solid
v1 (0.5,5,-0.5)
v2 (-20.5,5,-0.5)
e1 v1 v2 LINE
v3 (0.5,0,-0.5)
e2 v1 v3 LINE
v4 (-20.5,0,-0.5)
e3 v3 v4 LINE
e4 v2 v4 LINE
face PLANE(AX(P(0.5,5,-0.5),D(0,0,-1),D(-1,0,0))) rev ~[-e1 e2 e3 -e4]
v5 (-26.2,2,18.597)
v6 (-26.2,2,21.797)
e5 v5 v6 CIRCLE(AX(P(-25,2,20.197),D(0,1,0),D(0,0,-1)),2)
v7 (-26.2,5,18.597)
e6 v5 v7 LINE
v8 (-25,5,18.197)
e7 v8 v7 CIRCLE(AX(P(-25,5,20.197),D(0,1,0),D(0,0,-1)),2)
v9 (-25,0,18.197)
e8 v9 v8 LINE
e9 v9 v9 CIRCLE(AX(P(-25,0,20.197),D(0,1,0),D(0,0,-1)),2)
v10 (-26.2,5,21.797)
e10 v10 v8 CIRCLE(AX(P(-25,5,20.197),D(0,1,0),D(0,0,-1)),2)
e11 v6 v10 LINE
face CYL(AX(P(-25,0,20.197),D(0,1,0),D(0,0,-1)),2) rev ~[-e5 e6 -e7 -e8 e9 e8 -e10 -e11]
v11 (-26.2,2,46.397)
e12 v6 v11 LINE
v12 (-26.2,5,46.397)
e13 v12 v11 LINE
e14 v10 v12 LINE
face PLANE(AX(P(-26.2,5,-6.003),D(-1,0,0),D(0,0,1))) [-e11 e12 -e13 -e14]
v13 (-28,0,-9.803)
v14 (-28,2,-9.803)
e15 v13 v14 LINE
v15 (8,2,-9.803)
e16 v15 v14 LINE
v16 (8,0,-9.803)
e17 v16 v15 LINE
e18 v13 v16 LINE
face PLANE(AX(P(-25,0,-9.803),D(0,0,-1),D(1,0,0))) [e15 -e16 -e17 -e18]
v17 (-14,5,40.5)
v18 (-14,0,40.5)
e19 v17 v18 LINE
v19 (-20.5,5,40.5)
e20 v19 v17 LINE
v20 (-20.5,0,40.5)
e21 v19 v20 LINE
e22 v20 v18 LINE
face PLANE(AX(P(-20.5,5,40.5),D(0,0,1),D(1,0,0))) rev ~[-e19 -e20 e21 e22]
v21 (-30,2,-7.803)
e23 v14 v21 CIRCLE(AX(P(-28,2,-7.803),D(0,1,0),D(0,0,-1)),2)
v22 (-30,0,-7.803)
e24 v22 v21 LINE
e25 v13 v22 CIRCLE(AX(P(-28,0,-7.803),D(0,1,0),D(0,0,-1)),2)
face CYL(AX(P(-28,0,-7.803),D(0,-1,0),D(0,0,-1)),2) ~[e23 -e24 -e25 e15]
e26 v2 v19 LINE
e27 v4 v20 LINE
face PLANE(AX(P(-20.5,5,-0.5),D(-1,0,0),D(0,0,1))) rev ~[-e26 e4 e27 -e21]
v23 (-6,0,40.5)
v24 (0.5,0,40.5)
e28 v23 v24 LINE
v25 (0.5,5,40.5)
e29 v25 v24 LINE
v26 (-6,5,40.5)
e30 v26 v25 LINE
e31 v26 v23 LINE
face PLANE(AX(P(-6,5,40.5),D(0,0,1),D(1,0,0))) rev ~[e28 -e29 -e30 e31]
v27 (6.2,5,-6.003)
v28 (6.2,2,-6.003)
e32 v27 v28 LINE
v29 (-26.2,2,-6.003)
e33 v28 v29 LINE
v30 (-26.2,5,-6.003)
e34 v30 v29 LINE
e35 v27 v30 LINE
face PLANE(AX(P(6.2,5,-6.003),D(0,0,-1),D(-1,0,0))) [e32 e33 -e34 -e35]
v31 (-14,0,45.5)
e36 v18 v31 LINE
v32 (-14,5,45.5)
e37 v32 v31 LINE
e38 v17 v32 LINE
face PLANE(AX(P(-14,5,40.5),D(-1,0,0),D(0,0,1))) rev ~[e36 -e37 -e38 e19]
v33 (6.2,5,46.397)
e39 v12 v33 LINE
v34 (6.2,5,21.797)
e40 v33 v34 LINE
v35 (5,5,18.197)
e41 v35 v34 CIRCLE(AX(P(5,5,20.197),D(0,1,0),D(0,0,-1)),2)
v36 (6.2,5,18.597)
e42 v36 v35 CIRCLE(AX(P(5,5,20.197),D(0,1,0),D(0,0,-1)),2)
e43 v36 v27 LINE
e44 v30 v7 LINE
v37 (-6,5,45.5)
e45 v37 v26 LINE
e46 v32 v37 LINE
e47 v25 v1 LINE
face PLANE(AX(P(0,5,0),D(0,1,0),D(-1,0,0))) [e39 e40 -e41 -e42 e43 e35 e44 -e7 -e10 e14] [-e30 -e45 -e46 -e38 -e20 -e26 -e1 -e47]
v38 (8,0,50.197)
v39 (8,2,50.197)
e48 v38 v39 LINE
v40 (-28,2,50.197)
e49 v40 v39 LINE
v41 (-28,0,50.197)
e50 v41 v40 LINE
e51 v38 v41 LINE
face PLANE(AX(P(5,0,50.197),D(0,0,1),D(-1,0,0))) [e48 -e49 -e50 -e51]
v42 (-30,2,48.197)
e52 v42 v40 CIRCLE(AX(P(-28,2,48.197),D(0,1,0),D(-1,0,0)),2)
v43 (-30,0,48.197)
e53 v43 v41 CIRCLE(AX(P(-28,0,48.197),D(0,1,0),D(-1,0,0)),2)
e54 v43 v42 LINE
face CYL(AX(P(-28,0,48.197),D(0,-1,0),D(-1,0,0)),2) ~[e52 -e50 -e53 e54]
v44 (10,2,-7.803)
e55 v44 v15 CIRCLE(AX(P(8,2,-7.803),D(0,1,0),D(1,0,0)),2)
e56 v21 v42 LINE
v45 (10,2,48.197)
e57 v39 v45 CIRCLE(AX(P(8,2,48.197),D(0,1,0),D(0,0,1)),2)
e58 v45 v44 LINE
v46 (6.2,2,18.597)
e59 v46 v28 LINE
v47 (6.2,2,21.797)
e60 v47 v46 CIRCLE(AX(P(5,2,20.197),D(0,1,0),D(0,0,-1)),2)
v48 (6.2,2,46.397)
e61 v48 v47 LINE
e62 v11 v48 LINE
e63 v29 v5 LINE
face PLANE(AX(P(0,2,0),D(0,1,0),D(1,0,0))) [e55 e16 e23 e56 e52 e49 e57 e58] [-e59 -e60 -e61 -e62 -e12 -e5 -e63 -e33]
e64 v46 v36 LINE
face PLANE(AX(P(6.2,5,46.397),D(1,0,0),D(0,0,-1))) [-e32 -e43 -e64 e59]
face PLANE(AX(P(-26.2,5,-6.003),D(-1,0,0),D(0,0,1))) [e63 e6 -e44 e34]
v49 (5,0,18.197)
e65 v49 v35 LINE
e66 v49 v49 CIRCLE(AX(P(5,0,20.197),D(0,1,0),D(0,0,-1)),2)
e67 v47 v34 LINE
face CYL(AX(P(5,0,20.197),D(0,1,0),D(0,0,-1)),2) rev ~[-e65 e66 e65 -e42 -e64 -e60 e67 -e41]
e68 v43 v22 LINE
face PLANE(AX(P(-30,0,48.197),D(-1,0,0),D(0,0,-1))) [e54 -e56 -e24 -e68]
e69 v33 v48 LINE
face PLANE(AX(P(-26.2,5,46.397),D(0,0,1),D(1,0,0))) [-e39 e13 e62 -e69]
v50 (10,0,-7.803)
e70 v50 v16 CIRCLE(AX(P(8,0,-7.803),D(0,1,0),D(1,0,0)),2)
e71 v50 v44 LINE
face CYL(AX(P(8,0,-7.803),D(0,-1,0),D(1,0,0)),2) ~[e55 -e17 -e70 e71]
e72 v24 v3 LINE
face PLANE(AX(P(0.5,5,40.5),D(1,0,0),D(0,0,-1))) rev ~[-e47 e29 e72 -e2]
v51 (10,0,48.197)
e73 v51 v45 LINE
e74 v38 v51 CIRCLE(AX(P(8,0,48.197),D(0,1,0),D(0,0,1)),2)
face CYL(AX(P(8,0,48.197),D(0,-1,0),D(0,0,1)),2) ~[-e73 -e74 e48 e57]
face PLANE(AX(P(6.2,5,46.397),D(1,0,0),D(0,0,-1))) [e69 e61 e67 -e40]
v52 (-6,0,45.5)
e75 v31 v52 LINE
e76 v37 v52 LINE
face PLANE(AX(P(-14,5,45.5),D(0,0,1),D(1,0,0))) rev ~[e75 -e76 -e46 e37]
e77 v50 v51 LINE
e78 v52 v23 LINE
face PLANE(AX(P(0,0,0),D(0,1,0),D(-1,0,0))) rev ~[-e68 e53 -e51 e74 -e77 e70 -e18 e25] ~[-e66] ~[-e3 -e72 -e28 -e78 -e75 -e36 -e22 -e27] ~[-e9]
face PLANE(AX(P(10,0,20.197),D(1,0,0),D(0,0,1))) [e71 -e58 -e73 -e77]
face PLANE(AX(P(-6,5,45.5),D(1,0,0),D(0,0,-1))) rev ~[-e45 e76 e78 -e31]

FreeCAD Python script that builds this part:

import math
import FreeCAD as App
import Part
import Sketcher

V = App.Vector
Q = App.Units.Quantity


def add_polygon(sketch, points):
    """Adds a closed chain of lines whose ends are joined by coincident constraints."""
    first, n = sketch.GeometryCount, len(points)
    for a, b in zip(points, points[1:] + points[:1]):
        sketch.addGeometry(Part.LineSegment(App.Vector(*a, 0), App.Vector(*b, 0)), False)
    for i in range(n):
        sketch.addConstraint(Sketcher.Constraint("Coincident", first + i, 2, first + (i + 1) % n, 1))

doc = App.newDocument("Part")
body = doc.addObject("PartDesign::Body", "Body")

sketch1 = body.newObject("Sketcher::SketchObject", "Sketch")
sketch1.AttachmentSupport = (doc.getObject("XZ_Plane"), [""])
sketch1.MapMode = "FlatFace"
sketch1.addGeometry(Part.ArcOfCircle(Part.Circle(V(8, 48.2, 0), V(0, 0, 1), 2), math.radians(0), math.radians(90)), False)
sketch1.addGeometry(Part.LineSegment(V(10, 48.2, 0), V(10, -7.8, 0)), False)
sketch1.addGeometry(Part.ArcOfCircle(Part.Circle(V(8, -7.8, 0), V(0, 0, 1), 2), math.radians(-90), math.radians(0)), False)
sketch1.addGeometry(Part.LineSegment(V(8, -9.8, 0), V(-28, -9.8, 0)), False)
sketch1.addGeometry(Part.ArcOfCircle(Part.Circle(V(-28, -7.8, 0), V(0, 0, 1), 2), math.radians(180), math.radians(270)), False)
sketch1.addGeometry(Part.LineSegment(V(-30, -7.8, 0), V(-30, 48.2, 0)), False)
sketch1.addGeometry(Part.ArcOfCircle(Part.Circle(V(-28, 48.2, 0), V(0, 0, 1), 2), math.radians(90), math.radians(180)), False)
sketch1.addGeometry(Part.LineSegment(V(-28, 50.2, 0), V(8, 50.2, 0)), False)
add_polygon(sketch1, [(-13.5, 45), (-13.5, 40), (-20, 40), (-20, 0), (0, 0), (0, 40), (-6.5, 40), (-6.5, 45)])
sketch1.addConstraint(Sketcher.Constraint("Tangent", 0, 1, 1, 1))
sketch1.addConstraint(Sketcher.Constraint("Tangent", 1, 2, 2, 2))
sketch1.addConstraint(Sketcher.Constraint("Tangent", 2, 1, 3, 1))
sketch1.addConstraint(Sketcher.Constraint("Tangent", 3, 2, 4, 2))
sketch1.addConstraint(Sketcher.Constraint("Tangent", 4, 1, 5, 1))
sketch1.addConstraint(Sketcher.Constraint("Tangent", 5, 2, 6, 2))
sketch1.addConstraint(Sketcher.Constraint("Tangent", 6, 1, 7, 1))
sketch1.addConstraint(Sketcher.Constraint("Tangent", 7, 2, 0, 2))
sketch1.addConstraint(Sketcher.Constraint("Vertical", 1))
sketch1.addConstraint(Sketcher.Constraint("Horizontal", 3))
sketch1.addConstraint(Sketcher.Constraint("Vertical", 5))
sketch1.addConstraint(Sketcher.Constraint("Horizontal", 7))
sketch1.addConstraint(Sketcher.Constraint("Vertical", 8))
sketch1.addConstraint(Sketcher.Constraint("Horizontal", 9))
sketch1.addConstraint(Sketcher.Constraint("Vertical", 10))
sketch1.addConstraint(Sketcher.Constraint("Horizontal", 11))
sketch1.addConstraint(Sketcher.Constraint("Vertical", 12))
sketch1.addConstraint(Sketcher.Constraint("Horizontal", 13))
sketch1.addConstraint(Sketcher.Constraint("Vertical", 14))
sketch1.addConstraint(Sketcher.Constraint("Horizontal", 15))
sketch1.addConstraint(Sketcher.Constraint("Coincident", 11, 2, -1, 1))
sketch1.addConstraint(Sketcher.Constraint("Equal", 0, 2))
sketch1.addConstraint(Sketcher.Constraint("Equal", 2, 4))
sketch1.addConstraint(Sketcher.Constraint("Equal", 4, 6))
sketch1.addConstraint(Sketcher.Constraint("Horizontal", 9, 2, 12, 2))
sketch1.addConstraint(Sketcher.Constraint("Equal", 9, 13))
sketch1.addConstraint(Sketcher.Constraint("Radius", 0, Q("2 mm")))
sketch1.addConstraint(Sketcher.Constraint("DistanceX", 11, 1, 11, 2, Q("20 mm")))
sketch1.addConstraint(Sketcher.Constraint("DistanceY", 8, 2, 8, 1, Q("5 mm")))
sketch1.addConstraint(Sketcher.Constraint("DistanceY", 10, 2, 10, 1, Q("40 mm")))
sketch1.addConstraint(Sketcher.Constraint("DistanceX", -1, 1, 0, 1, Q("10 mm")))
sketch1.addConstraint(Sketcher.Constraint("DistanceX", 4, 1, -1, 1, Q("30 mm")))
sketch1.addConstraint(Sketcher.Constraint("DistanceX", 15, 2, 15, 1, Q("7 mm")))
sketch1.addConstraint(Sketcher.Constraint("DistanceY", 1, 2, 1, 1, Q("56 mm")))
sketch1.addConstraint(Sketcher.Constraint("DistanceY", -1, 1, 0, 3, Q("48.197 mm")))
pad1 = body.newObject("PartDesign::Pad", "Pad")
pad1.Profile = sketch1
pad1.Length = 5
pad1.Reversed = True

sketch2 = body.newObject("Sketcher::SketchObject", "Sketch001")
sketch2.AttachmentSupport = (doc.getObject("XZ_Plane"), [""])
sketch2.MapMode = "FlatFace"
sketch2.addGeometry(Part.Circle(V(5, 20.2, 0), V(0, 0, 1), 2), False)
sketch2.addGeometry(Part.Circle(V(-25, 20.2, 0), V(0, 0, 1), 2), False)
sketch2.addConstraint(Sketcher.Constraint("Equal", 0, 1))
sketch2.addConstraint(Sketcher.Constraint("Horizontal", 0, 3, 1, 3))
sketch2.addConstraint(Sketcher.Constraint("Diameter", 0, Q("4 mm")))
sketch2.addConstraint(Sketcher.Constraint("DistanceX", -1, 1, 0, 3, Q("5 mm")))
sketch2.addConstraint(Sketcher.Constraint("DistanceX", 1, 3, -1, 1, Q("25 mm")))
sketch2.addConstraint(Sketcher.Constraint("DistanceY", -1, 1, 0, 3, Q("20.197 mm")))
doc.recompute()
hole = body.newObject("PartDesign::Hole", "Hole")
hole.Profile = sketch2
hole.ThreadType = "None"
hole.Diameter = 4
hole.DepthType = "ThroughAll"

sketch3 = body.newObject("Sketcher::SketchObject", "Sketch002")
sketch3.AttachmentSupport = (doc.getObject("XZ_Plane"), [""])
sketch3.MapMode = "FlatFace"
sketch3.AttachmentOffset = App.Placement(V(0, 0, -5), App.Rotation())
add_polygon(sketch3, [(-6, 46), (-6, 40), (0, 40), (0, 0), (-20, 0), (-20, 40), (-14, 40), (-14, 46)])
add_polygon(sketch3, [(-14, 40), (-20, 40), (-20, 0), (0, 0), (0, 40), (-6, 40), (-6, 45), (-14, 45)])
sketch3.addConstraint(Sketcher.Constraint("Vertical", 0))
sketch3.addConstraint(Sketcher.Constraint("Horizontal", 1))
sketch3.addConstraint(Sketcher.Constraint("Vertical", 2))
sketch3.addConstraint(Sketcher.Constraint("Horizontal", 3))
sketch3.addConstraint(Sketcher.Constraint("Vertical", 4))
sketch3.addConstraint(Sketcher.Constraint("Horizontal", 5))
sketch3.addConstraint(Sketcher.Constraint("Vertical", 6))
sketch3.addConstraint(Sketcher.Constraint("Horizontal", 7))
sketch3.addConstraint(Sketcher.Constraint("Horizontal", 8))
sketch3.addConstraint(Sketcher.Constraint("Vertical", 9))
sketch3.addConstraint(Sketcher.Constraint("Horizontal", 10))
sketch3.addConstraint(Sketcher.Constraint("Vertical", 11))
sketch3.addConstraint(Sketcher.Constraint("Horizontal", 12))
sketch3.addConstraint(Sketcher.Constraint("Vertical", 13))
sketch3.addConstraint(Sketcher.Constraint("Horizontal", 14))
sketch3.addConstraint(Sketcher.Constraint("Vertical", 15))
sketch3.addConstraint(Sketcher.Constraint("Coincident", 10, 2, -1, 1))
sketch3.addConstraint(Sketcher.Constraint("Horizontal", 1, 2, 4, 2))
sketch3.addConstraint(Sketcher.Constraint("Horizontal", 8, 2, 11, 2))
sketch3.addConstraint(Sketcher.Constraint("Equal", 1, 5))
sketch3.addConstraint(Sketcher.Constraint("Equal", 5, 8))
sketch3.addConstraint(Sketcher.Constraint("Equal", 8, 12))
sketch3.addConstraint(Sketcher.Constraint("Equal", 6, 13))
sketch3.addConstraint(Sketcher.Constraint("DistanceX", -1, 1, 1, 2, Q("0.5 mm")))
sketch3.addConstraint(Sketcher.Constraint("DistanceY", 2, 2, -1, 1, Q("0.5 mm")))
sketch3.addConstraint(Sketcher.Constraint("DistanceX", 4, 2, 8, 2, Q("0.5 mm")))
sketch3.addConstraint(Sketcher.Constraint("DistanceY", 8, 2, 4, 2, Q("0.5 mm")))
sketch3.addConstraint(Sketcher.Constraint("DistanceX", 3, 2, 3, 1, Q("21 mm")))
sketch3.addConstraint(Sketcher.Constraint("DistanceX", 7, 1, 7, 2, Q("8 mm")))
sketch3.addConstraint(Sketcher.Constraint("DistanceY", 0, 2, 0, 1, Q("5 mm")))
sketch3.addConstraint(Sketcher.Constraint("DistanceY", 2, 2, 2, 1, Q("41 mm")))
pocket1 = body.newObject("PartDesign::Pocket", "Pocket")
pocket1.Profile = sketch3
pocket1.Length = 10
pocket1.Reversed = True

sketch4 = body.newObject("Sketcher::SketchObject", "Sketch003")
sketch4.AttachmentSupport = (doc.getObject("XZ_Plane"), [""])
sketch4.MapMode = "FlatFace"
sketch4.AttachmentOffset = App.Placement(V(0, 0, -5), App.Rotation())
sketch4.addGeometry(Part.ArcOfCircle(Part.Circle(V(8, 48.2, 0), V(0, 0, 1), 2), math.radians(0), math.radians(90)), False)
sketch4.addGeometry(Part.LineSegment(V(10, 48.2, 0), V(10, -7.8, 0)), False)
sketch4.addGeometry(Part.ArcOfCircle(Part.Circle(V(8, -7.8, 0), V(0, 0, 1), 2), math.radians(-90), math.radians(0)), False)
sketch4.addGeometry(Part.LineSegment(V(8, -9.8, 0), V(-28, -9.8, 0)), False)
sketch4.addGeometry(Part.ArcOfCircle(Part.Circle(V(-28, -7.8, 0), V(0, 0, 1), 2), math.radians(180), math.radians(270)), False)
sketch4.addGeometry(Part.LineSegment(V(-30, -7.8, 0), V(-30, 48.2, 0)), False)
sketch4.addGeometry(Part.ArcOfCircle(Part.Circle(V(-28, 48.2, 0), V(0, 0, 1), 2), math.radians(90), math.radians(180)), False)
sketch4.addGeometry(Part.LineSegment(V(-28, 50.2, 0), V(8, 50.2, 0)), False)
add_polygon(sketch4, [(6.2, -6), (6.2, 46.4), (-26.2, 46.4), (-26.2, -6)])
sketch4.addConstraint(Sketcher.Constraint("Tangent", 0, 1, 1, 1))
sketch4.addConstraint(Sketcher.Constraint("Tangent", 1, 2, 2, 2))
sketch4.addConstraint(Sketcher.Constraint("Tangent", 2, 1, 3, 1))
sketch4.addConstraint(Sketcher.Constraint("Tangent", 3, 2, 4, 2))
sketch4.addConstraint(Sketcher.Constraint("Tangent", 4, 1, 5, 1))
sketch4.addConstraint(Sketcher.Constraint("Tangent", 5, 2, 6, 2))
sketch4.addConstraint(Sketcher.Constraint("Tangent", 6, 1, 7, 1))
sketch4.addConstraint(Sketcher.Constraint("Tangent", 7, 2, 0, 2))
sketch4.addConstraint(Sketcher.Constraint("Vertical", 1))
sketch4.addConstraint(Sketcher.Constraint("Horizontal", 3))
sketch4.addConstraint(Sketcher.Constraint("Vertical", 5))
sketch4.addConstraint(Sketcher.Constraint("Horizontal", 7))
sketch4.addConstraint(Sketcher.Constraint("Vertical", 8))
sketch4.addConstraint(Sketcher.Constraint("Horizontal", 9))
sketch4.addConstraint(Sketcher.Constraint("Vertical", 10))
sketch4.addConstraint(Sketcher.Constraint("Horizontal", 11))
sketch4.addConstraint(Sketcher.Constraint("Equal", 0, 2))
sketch4.addConstraint(Sketcher.Constraint("Equal", 2, 4))
sketch4.addConstraint(Sketcher.Constraint("Equal", 4, 6))
sketch4.addConstraint(Sketcher.Constraint("Radius", 0, Q("2 mm")))
sketch4.addConstraint(Sketcher.Constraint("DistanceX", 8, 2, 0, 1, Q("3.8 mm")))
sketch4.addConstraint(Sketcher.Constraint("DistanceY", 8, 2, 7, 2, Q("3.8 mm")))
sketch4.addConstraint(Sketcher.Constraint("DistanceX", 5, 2, 9, 2, Q("3.8 mm")))
sketch4.addConstraint(Sketcher.Constraint("DistanceY", 3, 2, 10, 2, Q("3.8 mm")))
sketch4.addConstraint(Sketcher.Constraint("DistanceX", 3, 2, 3, 1, Q("36 mm")))
sketch4.addConstraint(Sketcher.Constraint("DistanceY", 1, 2, 1, 1, Q("56 mm")))
sketch4.addConstraint(Sketcher.Constraint("DistanceX", -1, 1, 0, 3, Q("8 mm")))
sketch4.addConstraint(Sketcher.Constraint("DistanceY", -1, 1, 0, 3, Q("48.197 mm")))
pocket2 = body.newObject("PartDesign::Pocket", "Pocket001")
pocket2.Profile = sketch4
pocket2.Length = 3
pocket2.Reversed = True

doc.recompute()
